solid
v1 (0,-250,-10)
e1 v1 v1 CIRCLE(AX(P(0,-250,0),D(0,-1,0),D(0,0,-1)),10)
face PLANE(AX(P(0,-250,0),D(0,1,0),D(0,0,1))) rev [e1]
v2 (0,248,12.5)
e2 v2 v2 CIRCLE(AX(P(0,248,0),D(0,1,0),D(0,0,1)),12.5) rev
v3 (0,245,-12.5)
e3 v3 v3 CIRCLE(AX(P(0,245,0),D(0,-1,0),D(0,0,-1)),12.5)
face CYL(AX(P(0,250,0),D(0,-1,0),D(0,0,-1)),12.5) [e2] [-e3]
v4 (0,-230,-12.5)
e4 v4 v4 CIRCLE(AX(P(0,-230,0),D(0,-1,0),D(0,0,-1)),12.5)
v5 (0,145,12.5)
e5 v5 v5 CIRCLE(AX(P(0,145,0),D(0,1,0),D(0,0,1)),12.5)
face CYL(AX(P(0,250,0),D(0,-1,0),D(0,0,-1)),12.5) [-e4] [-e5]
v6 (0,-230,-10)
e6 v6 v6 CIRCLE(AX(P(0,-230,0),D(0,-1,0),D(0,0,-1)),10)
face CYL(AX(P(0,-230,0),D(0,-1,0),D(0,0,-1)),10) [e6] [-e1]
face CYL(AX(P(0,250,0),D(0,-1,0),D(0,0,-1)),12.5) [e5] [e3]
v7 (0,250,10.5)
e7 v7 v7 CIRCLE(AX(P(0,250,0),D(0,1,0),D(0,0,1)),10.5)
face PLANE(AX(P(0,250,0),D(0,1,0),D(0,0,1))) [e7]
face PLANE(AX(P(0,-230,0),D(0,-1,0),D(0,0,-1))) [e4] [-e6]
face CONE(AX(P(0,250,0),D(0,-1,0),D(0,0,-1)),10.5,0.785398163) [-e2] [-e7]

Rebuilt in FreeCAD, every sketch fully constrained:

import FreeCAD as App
import Part
import Sketcher
from FreeCAD import Vector
Q = App.Units.Quantity


def edges_at(feature, points):
    """Names of the edges that pass closest to the given points."""
    edges = feature.Shape.Edges
    near = lambda p: min(range(len(edges)), key=lambda i: edges[i].distToShape(Part.Vertex(*p))[0])
    return sorted({f"Edge{near(p) + 1}" for p in points})

doc = App.newDocument("Part")
body = doc.addObject("PartDesign::Body", "Body")

# Sketch on XZ plane
sketch1 = body.newObject("Sketcher::SketchObject", "Sketch")
sketch1.AttachmentSupport = (doc.getObject("XZ_Plane"), [""])
sketch1.MapMode = "FlatFace"
sketch1.addGeometry(Part.Circle(Vector(0, 0, 0), Vector(0, 0, 1), 12), False)
sketch1.addConstraint([
    Sketcher.Constraint("Coincident", 0, 3, -1, 1),
    Sketcher.Constraint("Diameter", 0, Q("25 mm")),
])
pad1 = body.newObject("PartDesign::Pad", "Pad")
pad1.Profile = sketch1
pad1.Length = 500
pad1.Midplane = True
doc.recompute()

chamfer = body.newObject("PartDesign::Chamfer", "Chamfer")
chamfer.Base = (pad1, edges_at(pad1, [(0, 250, -12.5)]))
chamfer.Size = 2

# Sketch on XZ plane
sketch2 = body.newObject("Sketcher::SketchObject", "Sketch001")
sketch2.AttachmentSupport = (doc.getObject("XZ_Plane"), [""])
sketch2.MapMode = "FlatFace"
sketch2.AttachmentOffset = App.Placement(Vector(0, 0, 230), App.Rotation())
sketch2.addGeometry([
    Part.Circle(Vector(0, 0, 0), Vector(0, 0, 1), 12),
    Part.Circle(Vector(0, 0, 0), Vector(0, 0, 1), 10),
], False)
sketch2.addConstraint([
    Sketcher.Constraint("Coincident", 0, 3, -1, 1),
    Sketcher.Constraint("Coincident", 1, 3, -1, 1),
    Sketcher.Constraint("Diameter", 0, Q("25 mm")),
    Sketcher.Constraint("Diameter", 1, Q("20 mm")),
])
pocket1 = body.newObject("PartDesign::Pocket", "Pocket")
pocket1.Profile = sketch2
pocket1.Length = 20
pocket1.Reversed = True

doc.recompute()
